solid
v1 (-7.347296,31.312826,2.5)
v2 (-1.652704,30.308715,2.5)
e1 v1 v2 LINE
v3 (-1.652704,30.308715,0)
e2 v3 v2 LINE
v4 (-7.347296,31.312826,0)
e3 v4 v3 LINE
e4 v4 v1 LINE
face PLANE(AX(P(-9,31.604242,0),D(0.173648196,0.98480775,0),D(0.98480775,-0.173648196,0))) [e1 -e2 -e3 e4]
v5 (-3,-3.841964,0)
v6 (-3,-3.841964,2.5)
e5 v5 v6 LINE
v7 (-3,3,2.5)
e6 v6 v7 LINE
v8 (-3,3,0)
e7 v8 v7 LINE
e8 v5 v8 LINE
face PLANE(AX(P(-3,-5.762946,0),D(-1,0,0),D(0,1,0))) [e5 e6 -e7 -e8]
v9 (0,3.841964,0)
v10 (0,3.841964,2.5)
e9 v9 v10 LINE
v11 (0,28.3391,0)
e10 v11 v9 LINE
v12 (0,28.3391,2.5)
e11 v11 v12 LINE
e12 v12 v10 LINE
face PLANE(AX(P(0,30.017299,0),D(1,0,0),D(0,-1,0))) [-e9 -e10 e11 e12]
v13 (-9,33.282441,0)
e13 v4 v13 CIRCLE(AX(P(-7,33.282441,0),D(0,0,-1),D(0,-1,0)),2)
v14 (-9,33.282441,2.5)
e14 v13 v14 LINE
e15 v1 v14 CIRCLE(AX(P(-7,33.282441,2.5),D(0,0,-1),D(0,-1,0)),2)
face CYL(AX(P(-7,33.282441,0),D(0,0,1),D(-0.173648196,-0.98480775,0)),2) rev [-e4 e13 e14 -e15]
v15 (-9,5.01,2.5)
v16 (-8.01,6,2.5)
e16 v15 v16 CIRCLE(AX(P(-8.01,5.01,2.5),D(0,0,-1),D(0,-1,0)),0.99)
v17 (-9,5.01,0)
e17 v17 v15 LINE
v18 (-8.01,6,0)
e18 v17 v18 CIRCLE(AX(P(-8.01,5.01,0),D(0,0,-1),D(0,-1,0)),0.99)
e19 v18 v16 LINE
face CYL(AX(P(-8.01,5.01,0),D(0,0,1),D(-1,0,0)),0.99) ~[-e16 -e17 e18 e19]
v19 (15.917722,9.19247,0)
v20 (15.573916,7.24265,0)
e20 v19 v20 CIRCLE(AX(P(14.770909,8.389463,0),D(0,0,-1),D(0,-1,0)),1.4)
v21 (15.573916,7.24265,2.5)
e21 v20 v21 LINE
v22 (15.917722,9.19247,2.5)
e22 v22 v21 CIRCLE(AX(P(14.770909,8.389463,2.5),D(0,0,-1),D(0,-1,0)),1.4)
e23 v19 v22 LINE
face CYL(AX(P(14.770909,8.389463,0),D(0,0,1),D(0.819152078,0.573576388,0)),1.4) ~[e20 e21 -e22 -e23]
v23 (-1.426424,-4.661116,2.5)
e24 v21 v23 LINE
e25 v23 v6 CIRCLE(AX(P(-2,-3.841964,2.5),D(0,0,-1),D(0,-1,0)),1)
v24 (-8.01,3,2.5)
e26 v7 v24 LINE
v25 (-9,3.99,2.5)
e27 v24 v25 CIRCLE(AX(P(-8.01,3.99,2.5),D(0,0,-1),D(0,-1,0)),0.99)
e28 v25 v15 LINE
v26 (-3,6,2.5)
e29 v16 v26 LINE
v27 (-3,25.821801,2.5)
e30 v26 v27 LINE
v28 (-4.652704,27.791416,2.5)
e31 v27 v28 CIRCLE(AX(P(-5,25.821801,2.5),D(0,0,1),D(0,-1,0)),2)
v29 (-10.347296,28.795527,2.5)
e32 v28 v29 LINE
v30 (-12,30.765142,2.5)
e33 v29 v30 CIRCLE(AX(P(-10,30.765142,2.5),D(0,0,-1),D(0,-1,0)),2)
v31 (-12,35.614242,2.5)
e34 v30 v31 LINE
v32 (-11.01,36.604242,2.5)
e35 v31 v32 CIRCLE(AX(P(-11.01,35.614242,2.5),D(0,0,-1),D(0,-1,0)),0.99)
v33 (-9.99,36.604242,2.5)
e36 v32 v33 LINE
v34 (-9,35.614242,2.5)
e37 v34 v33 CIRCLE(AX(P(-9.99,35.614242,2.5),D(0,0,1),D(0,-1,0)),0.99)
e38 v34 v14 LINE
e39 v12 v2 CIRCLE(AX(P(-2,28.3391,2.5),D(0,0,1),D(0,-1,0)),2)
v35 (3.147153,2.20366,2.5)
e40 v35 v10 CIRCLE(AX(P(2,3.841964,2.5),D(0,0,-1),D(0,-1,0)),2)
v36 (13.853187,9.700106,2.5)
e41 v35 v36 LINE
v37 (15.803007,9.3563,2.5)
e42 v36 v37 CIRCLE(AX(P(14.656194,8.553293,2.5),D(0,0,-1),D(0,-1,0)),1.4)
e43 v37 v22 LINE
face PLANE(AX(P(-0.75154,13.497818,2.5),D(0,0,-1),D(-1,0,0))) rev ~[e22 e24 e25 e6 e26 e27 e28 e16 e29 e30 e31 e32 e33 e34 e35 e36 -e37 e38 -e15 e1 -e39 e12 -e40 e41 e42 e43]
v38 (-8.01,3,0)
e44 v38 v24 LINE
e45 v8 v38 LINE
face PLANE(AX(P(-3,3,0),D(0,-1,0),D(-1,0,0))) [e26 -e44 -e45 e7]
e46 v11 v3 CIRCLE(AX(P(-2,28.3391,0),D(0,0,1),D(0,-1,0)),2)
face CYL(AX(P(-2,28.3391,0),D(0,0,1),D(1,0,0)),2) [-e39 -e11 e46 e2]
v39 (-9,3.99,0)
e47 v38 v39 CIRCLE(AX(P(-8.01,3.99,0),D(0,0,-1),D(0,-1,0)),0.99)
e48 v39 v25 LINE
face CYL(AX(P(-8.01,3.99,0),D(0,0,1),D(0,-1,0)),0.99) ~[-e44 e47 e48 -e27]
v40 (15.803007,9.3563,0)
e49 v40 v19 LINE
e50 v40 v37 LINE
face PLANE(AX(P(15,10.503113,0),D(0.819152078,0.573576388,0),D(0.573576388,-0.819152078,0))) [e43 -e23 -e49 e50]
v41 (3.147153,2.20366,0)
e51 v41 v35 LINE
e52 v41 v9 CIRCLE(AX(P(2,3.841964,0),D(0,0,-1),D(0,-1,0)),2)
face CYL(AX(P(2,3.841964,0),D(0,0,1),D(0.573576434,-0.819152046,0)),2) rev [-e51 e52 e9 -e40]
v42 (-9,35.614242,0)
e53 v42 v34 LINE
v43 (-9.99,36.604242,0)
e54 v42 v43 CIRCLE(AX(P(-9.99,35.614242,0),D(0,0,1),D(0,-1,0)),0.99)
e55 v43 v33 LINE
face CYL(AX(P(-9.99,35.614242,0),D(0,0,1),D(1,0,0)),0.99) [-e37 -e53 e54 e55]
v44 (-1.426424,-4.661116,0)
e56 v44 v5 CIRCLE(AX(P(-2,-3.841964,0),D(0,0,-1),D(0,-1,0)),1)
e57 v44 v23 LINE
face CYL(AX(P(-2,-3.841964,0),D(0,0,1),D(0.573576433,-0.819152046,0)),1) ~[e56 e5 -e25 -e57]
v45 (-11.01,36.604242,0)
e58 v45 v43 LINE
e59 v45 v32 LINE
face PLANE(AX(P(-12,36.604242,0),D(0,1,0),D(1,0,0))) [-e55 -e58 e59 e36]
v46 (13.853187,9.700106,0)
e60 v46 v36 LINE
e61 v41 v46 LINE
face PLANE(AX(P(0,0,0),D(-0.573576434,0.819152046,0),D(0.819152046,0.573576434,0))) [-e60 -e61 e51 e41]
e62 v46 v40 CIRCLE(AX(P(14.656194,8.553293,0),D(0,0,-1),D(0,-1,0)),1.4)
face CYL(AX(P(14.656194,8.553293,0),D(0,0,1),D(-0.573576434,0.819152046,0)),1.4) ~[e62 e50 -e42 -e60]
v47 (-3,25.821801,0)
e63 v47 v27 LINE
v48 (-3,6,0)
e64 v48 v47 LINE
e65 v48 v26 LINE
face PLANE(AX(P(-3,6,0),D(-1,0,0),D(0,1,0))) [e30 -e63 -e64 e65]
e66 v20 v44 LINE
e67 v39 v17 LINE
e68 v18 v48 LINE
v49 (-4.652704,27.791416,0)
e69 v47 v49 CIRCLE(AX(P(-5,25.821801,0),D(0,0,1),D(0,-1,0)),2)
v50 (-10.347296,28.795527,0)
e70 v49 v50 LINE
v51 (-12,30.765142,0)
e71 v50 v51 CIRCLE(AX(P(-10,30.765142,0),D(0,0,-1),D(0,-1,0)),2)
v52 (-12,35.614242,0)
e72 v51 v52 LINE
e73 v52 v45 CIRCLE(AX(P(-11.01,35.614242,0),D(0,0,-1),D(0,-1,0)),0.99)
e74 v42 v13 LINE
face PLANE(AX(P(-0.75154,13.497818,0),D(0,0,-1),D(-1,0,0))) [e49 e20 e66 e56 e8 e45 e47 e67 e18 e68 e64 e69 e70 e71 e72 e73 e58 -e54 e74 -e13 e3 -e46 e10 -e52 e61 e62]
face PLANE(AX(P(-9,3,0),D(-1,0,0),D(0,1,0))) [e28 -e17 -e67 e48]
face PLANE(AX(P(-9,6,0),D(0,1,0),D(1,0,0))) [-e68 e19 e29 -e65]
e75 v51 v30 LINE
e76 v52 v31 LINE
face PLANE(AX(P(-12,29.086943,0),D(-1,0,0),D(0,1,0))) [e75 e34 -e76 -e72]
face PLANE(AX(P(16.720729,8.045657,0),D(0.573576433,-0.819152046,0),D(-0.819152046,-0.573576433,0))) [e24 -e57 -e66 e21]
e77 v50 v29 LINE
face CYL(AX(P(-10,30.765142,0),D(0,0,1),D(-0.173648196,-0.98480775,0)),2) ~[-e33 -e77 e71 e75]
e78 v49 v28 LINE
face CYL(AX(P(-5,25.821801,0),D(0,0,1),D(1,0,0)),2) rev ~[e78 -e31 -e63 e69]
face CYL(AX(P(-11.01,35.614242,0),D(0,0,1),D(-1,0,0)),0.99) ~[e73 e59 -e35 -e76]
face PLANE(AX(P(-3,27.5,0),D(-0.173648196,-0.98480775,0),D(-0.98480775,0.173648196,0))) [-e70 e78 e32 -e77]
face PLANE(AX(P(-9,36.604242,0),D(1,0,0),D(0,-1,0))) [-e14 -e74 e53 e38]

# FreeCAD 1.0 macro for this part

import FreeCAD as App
import Part
import Sketcher
from FreeCAD import Vector
Q = App.Units.Quantity


def edges_at(feature, points):
    """Names of the edges that pass closest to the given points."""
    edges = feature.Shape.Edges
    near = lambda p: min(range(len(edges)), key=lambda i: edges[i].distToShape(Part.Vertex(*p))[0])
    return sorted({f"Edge{near(p) + 1}" for p in points})


def add_polygon(sketch, points):
    """Adds a closed chain of lines whose ends are joined by coincident constraints."""
    first, n = sketch.GeometryCount, len(points)
    for a, b in zip(points, points[1:] + points[:1]):
        sketch.addGeometry(Part.LineSegment(App.Vector(*a, 0), App.Vector(*b, 0)), False)
    for i in range(n):
        sketch.addConstraint(Sketcher.Constraint("Coincident", first + i, 2, first + (i + 1) % n, 1))

doc = App.newDocument("Part")
body = doc.addObject("PartDesign::Body", "Body")

# Sketch on XY plane
sketch1 = body.newObject("Sketcher::SketchObject", "Sketch")
sketch1.AttachmentSupport = (doc.getObject("XY_Plane"), [""])
sketch1.MapMode = "FlatFace"
add_polygon(sketch1, [(15, 10.5), (0, 0), (0, 30), (-9, 31.6), (-9, 36.6), (-12, 36.6), (-12, 29.1), (-3, 27.5), (-3, 6), (-9, 6), (-9, 3), (-3, 3), (-3, -5.8), (16.7, 8)])  # lines 0-13
sketch1.addConstraint(Sketcher.Constraint("Vertical", 1))
sketch1.addConstraint(Sketcher.Constraint("Vertical", 3))
sketch1.addConstraint(Sketcher.Constraint("Horizontal", 4))
sketch1.addConstraint(Sketcher.Constraint("Vertical", 5))
sketch1.addConstraint(Sketcher.Constraint("Vertical", 7))
sketch1.addConstraint(Sketcher.Constraint("Horizontal", 8))
sketch1.addConstraint(Sketcher.Constraint("Vertical", 9))
sketch1.addConstraint(Sketcher.Constraint("Horizontal", 10))
sketch1.addConstraint(Sketcher.Constraint("Vertical", 11))
sketch1.addConstraint(Sketcher.Constraint("Coincident", 0, 2, -1, 1))
sketch1.addConstraint(Sketcher.Constraint("Parallel", 2, 6))
sketch1.addConstraint(Sketcher.Constraint("Parallel", 0, 12))
sketch1.addConstraint(Sketcher.Constraint("Perpendicular", 12, 13))
sketch1.addConstraint(Sketcher.Constraint("Vertical", 3, 2, 8, 2))
sketch1.addConstraint(Sketcher.Constraint("Vertical", 7, 2, 10, 2))
sketch1.addConstraint(Sketcher.Constraint("Equal", 4, 9))
sketch1.addConstraint(Sketcher.Constraint("Equal", 2, 6))
sketch1.addConstraint(Sketcher.Constraint("DistanceX", 4, 2, 4, 1, 3.0))
sketch1.addConstraint(Sketcher.Constraint("DistanceX", 8, 2, 8, 1, 6.0))
sketch1.addConstraint(Sketcher.Constraint("DistanceY", 3, 1, 3, 2, 5.0))
sketch1.addConstraint(Sketcher.Constraint("Angle", 0, Q("-145 deg")))
sketch1.addConstraint(Sketcher.Constraint("Angle", 2, Q("169.999999 deg")))
sketch1.addConstraint(Sketcher.Constraint("Distance", 13, 3.0))
sketch1.addConstraint(Sketcher.Constraint("DistanceY", 7, 2, 7, 1, 21.5))
sketch1.addConstraint(Sketcher.Constraint("DistanceY", -1, 1, 7, 2, 6.0))
sketch1.addConstraint(Sketcher.Constraint("DistanceX", -1, 1, 13, 2, 15.0))
sketch1.addConstraint(Sketcher.Constraint("DistanceY", 1, 1, 1, 2, 30.017299))
pad1 = body.newObject("PartDesign::Pad", "Pad")
pad1.Profile = sketch1
pad1.Length = 2.5
doc.recompute()

fillet = body.newObject("PartDesign::Fillet", "Fillet")
fillet.Base = (pad1, edges_at(pad1, [(-9, 3, 1.25), (-9, 6, 1.25)]))
fillet.Radius = 0.99
doc.recompute()

fillet2 = body.newObject("PartDesign::Fillet", "Fillet001")
fillet2.Base = (fillet, edges_at(fillet, [(-12, 36.604, 1.25), (-9, 36.604, 1.25)]))
fillet2.Radius = 0.99
doc.recompute()

fillet3 = body.newObject("PartDesign::Fillet", "Fillet002")
fillet3.Base = (fillet2, edges_at(fillet2, [(15, 10.503, 1.25), (16.721, 8.046, 1.25)]))
fillet3.Radius = 1.4
doc.recompute()

fillet4 = body.newObject("PartDesign::Fillet", "Fillet003")
fillet4.Base = (fillet3, edges_at(fillet3, [(0, 0, 1.25)]))
fillet4.Radius = 2
doc.recompute()

fillet5 = body.newObject("PartDesign::Fillet", "Fillet004")
fillet5.Base = (fillet4, edges_at(fillet4, [(-3, -5.763, 1.25)]))
fillet5.Radius = 1
doc.recompute()

fillet6 = body.newObject("PartDesign::Fillet", "Fillet005")
fillet6.Base = (fillet5, edges_at(fillet5, [
    (-12, 29.087, 1.25),
    (-3, 27.5, 1.25),
    (0, 30.017, 1.25),
    (-9, 31.604, 1.25),
]))
fillet6.Radius = 2

doc.recompute()
